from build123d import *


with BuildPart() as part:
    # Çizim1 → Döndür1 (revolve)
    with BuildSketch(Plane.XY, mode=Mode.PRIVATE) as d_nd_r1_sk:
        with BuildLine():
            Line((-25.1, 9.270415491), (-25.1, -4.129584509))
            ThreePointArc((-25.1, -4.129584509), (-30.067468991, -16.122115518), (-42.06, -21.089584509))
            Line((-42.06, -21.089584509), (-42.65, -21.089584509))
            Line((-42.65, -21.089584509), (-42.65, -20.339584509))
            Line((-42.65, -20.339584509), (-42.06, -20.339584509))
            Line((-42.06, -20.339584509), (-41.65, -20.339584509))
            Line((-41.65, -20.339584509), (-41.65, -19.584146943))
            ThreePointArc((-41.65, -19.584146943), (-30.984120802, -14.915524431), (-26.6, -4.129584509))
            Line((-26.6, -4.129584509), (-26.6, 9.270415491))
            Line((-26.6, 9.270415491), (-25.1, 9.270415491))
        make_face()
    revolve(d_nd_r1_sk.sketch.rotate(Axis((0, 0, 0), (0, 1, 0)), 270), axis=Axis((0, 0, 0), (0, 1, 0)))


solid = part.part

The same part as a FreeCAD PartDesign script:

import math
import FreeCAD as App
import Part
import Sketcher

doc = App.newDocument("Part")
body = doc.addObject("PartDesign::Body", "Body")

# Sketch on XY plane
sketch1 = body.newObject("Sketcher::SketchObject", "Sketch")
sketch1.AttachmentSupport = (doc.getObject("XY_Plane"), [""])
sketch1.MapMode = "FlatFace"
sketch1.addGeometry(Part.LineSegment(App.Vector(-25.1, -4.129585, 0), App.Vector(-25.1, 9.270415, 0)), False)
sketch1.addGeometry(Part.LineSegment(App.Vector(-25.1, 9.270415, 0), App.Vector(-26.6, 9.270415, 0)), False)
sketch1.addGeometry(Part.LineSegment(App.Vector(-26.6, 9.270415, 0), App.Vector(-26.6, -4.129585, 0)), False)
sketch1.addGeometry(Part.ArcOfCircle(Part.Circle(App.Vector(-42.06, -4.129585, 0), App.Vector(0, 0, 1), 15.46), math.radians(-88.480335), math.radians(0)), False)
sketch1.addGeometry(Part.LineSegment(App.Vector(-41.65, -19.584147, 0), App.Vector(-41.65, -20.339585, 0)), False)
sketch1.addGeometry(Part.LineSegment(App.Vector(-41.65, -20.339585, 0), App.Vector(-42.65, -20.339585, 0)), False)
sketch1.addGeometry(Part.LineSegment(App.Vector(-42.65, -20.339585, 0), App.Vector(-42.65, -21.089585, 0)), False)
sketch1.addGeometry(Part.LineSegment(App.Vector(-42.65, -21.089585, 0), App.Vector(-42.06, -21.089585, 0)), False)
sketch1.addGeometry(Part.ArcOfCircle(Part.Circle(App.Vector(-42.06, -4.129585, 0), App.Vector(0, 0, 1), 16.96), math.radians(-90), math.radians(0)), False)
sketch1.addConstraint(Sketcher.Constraint("Coincident", 0, 2, 1, 1))
sketch1.addConstraint(Sketcher.Constraint("Coincident", 1, 2, 2, 1))
sketch1.addConstraint(Sketcher.Constraint("Tangent", 2, 2, 3, 2))
sketch1.addConstraint(Sketcher.Constraint("Coincident", 3, 1, 4, 1))
sketch1.addConstraint(Sketcher.Constraint("Coincident", 4, 2, 5, 1))
sketch1.addConstraint(Sketcher.Constraint("Coincident", 5, 2, 6, 1))
sketch1.addConstraint(Sketcher.Constraint("Coincident", 6, 2, 7, 1))
sketch1.addConstraint(Sketcher.Constraint("Tangent", 7, 2, 8, 1))
sketch1.addConstraint(Sketcher.Constraint("Tangent", 8, 2, 0, 1))
sketch1.addConstraint(Sketcher.Constraint("Vertical", 0))
sketch1.addConstraint(Sketcher.Constraint("Horizontal", 1))
sketch1.addConstraint(Sketcher.Constraint("Vertical", 2))
sketch1.addConstraint(Sketcher.Constraint("Vertical", 4))
sketch1.addConstraint(Sketcher.Constraint("Horizontal", 5))
sketch1.addConstraint(Sketcher.Constraint("Vertical", 6))
sketch1.addConstraint(Sketcher.Constraint("Horizontal", 7))
sketch1.addConstraint(Sketcher.Constraint("Coincident", 8, 3, 3, 3))
sketch1.addConstraint(Sketcher.Constraint("DistanceX", 5, 2, 5, 1, 1.0))
sketch1.addConstraint(Sketcher.Constraint("Radius", 3, 15.46))
sketch1.addConstraint(Sketcher.Constraint("Radius", 8, 16.96))
sketch1.addConstraint(Sketcher.Constraint("DistanceY", 0, 1, 0, 2, 13.4))
sketch1.addConstraint(Sketcher.Constraint("DistanceX", 7, 1, 7, 2, 0.59))
sketch1.addConstraint(Sketcher.Constraint("DistanceY", 6, 2, 6, 1, 0.75))
sketch1.addConstraint(Sketcher.Constraint("DistanceX", 0, 2, -1, 1, 25.1))
sketch1.addConstraint(Sketcher.Constraint("DistanceY", 3, 3, -1, 1, 4.129585))
revolution = body.newObject("PartDesign::Revolution", "Revolution")
revolution.Profile = sketch1
revolution.ReferenceAxis = (sketch1, ["V_Axis"])
revolution.Angle = 360

doc.recompute()
